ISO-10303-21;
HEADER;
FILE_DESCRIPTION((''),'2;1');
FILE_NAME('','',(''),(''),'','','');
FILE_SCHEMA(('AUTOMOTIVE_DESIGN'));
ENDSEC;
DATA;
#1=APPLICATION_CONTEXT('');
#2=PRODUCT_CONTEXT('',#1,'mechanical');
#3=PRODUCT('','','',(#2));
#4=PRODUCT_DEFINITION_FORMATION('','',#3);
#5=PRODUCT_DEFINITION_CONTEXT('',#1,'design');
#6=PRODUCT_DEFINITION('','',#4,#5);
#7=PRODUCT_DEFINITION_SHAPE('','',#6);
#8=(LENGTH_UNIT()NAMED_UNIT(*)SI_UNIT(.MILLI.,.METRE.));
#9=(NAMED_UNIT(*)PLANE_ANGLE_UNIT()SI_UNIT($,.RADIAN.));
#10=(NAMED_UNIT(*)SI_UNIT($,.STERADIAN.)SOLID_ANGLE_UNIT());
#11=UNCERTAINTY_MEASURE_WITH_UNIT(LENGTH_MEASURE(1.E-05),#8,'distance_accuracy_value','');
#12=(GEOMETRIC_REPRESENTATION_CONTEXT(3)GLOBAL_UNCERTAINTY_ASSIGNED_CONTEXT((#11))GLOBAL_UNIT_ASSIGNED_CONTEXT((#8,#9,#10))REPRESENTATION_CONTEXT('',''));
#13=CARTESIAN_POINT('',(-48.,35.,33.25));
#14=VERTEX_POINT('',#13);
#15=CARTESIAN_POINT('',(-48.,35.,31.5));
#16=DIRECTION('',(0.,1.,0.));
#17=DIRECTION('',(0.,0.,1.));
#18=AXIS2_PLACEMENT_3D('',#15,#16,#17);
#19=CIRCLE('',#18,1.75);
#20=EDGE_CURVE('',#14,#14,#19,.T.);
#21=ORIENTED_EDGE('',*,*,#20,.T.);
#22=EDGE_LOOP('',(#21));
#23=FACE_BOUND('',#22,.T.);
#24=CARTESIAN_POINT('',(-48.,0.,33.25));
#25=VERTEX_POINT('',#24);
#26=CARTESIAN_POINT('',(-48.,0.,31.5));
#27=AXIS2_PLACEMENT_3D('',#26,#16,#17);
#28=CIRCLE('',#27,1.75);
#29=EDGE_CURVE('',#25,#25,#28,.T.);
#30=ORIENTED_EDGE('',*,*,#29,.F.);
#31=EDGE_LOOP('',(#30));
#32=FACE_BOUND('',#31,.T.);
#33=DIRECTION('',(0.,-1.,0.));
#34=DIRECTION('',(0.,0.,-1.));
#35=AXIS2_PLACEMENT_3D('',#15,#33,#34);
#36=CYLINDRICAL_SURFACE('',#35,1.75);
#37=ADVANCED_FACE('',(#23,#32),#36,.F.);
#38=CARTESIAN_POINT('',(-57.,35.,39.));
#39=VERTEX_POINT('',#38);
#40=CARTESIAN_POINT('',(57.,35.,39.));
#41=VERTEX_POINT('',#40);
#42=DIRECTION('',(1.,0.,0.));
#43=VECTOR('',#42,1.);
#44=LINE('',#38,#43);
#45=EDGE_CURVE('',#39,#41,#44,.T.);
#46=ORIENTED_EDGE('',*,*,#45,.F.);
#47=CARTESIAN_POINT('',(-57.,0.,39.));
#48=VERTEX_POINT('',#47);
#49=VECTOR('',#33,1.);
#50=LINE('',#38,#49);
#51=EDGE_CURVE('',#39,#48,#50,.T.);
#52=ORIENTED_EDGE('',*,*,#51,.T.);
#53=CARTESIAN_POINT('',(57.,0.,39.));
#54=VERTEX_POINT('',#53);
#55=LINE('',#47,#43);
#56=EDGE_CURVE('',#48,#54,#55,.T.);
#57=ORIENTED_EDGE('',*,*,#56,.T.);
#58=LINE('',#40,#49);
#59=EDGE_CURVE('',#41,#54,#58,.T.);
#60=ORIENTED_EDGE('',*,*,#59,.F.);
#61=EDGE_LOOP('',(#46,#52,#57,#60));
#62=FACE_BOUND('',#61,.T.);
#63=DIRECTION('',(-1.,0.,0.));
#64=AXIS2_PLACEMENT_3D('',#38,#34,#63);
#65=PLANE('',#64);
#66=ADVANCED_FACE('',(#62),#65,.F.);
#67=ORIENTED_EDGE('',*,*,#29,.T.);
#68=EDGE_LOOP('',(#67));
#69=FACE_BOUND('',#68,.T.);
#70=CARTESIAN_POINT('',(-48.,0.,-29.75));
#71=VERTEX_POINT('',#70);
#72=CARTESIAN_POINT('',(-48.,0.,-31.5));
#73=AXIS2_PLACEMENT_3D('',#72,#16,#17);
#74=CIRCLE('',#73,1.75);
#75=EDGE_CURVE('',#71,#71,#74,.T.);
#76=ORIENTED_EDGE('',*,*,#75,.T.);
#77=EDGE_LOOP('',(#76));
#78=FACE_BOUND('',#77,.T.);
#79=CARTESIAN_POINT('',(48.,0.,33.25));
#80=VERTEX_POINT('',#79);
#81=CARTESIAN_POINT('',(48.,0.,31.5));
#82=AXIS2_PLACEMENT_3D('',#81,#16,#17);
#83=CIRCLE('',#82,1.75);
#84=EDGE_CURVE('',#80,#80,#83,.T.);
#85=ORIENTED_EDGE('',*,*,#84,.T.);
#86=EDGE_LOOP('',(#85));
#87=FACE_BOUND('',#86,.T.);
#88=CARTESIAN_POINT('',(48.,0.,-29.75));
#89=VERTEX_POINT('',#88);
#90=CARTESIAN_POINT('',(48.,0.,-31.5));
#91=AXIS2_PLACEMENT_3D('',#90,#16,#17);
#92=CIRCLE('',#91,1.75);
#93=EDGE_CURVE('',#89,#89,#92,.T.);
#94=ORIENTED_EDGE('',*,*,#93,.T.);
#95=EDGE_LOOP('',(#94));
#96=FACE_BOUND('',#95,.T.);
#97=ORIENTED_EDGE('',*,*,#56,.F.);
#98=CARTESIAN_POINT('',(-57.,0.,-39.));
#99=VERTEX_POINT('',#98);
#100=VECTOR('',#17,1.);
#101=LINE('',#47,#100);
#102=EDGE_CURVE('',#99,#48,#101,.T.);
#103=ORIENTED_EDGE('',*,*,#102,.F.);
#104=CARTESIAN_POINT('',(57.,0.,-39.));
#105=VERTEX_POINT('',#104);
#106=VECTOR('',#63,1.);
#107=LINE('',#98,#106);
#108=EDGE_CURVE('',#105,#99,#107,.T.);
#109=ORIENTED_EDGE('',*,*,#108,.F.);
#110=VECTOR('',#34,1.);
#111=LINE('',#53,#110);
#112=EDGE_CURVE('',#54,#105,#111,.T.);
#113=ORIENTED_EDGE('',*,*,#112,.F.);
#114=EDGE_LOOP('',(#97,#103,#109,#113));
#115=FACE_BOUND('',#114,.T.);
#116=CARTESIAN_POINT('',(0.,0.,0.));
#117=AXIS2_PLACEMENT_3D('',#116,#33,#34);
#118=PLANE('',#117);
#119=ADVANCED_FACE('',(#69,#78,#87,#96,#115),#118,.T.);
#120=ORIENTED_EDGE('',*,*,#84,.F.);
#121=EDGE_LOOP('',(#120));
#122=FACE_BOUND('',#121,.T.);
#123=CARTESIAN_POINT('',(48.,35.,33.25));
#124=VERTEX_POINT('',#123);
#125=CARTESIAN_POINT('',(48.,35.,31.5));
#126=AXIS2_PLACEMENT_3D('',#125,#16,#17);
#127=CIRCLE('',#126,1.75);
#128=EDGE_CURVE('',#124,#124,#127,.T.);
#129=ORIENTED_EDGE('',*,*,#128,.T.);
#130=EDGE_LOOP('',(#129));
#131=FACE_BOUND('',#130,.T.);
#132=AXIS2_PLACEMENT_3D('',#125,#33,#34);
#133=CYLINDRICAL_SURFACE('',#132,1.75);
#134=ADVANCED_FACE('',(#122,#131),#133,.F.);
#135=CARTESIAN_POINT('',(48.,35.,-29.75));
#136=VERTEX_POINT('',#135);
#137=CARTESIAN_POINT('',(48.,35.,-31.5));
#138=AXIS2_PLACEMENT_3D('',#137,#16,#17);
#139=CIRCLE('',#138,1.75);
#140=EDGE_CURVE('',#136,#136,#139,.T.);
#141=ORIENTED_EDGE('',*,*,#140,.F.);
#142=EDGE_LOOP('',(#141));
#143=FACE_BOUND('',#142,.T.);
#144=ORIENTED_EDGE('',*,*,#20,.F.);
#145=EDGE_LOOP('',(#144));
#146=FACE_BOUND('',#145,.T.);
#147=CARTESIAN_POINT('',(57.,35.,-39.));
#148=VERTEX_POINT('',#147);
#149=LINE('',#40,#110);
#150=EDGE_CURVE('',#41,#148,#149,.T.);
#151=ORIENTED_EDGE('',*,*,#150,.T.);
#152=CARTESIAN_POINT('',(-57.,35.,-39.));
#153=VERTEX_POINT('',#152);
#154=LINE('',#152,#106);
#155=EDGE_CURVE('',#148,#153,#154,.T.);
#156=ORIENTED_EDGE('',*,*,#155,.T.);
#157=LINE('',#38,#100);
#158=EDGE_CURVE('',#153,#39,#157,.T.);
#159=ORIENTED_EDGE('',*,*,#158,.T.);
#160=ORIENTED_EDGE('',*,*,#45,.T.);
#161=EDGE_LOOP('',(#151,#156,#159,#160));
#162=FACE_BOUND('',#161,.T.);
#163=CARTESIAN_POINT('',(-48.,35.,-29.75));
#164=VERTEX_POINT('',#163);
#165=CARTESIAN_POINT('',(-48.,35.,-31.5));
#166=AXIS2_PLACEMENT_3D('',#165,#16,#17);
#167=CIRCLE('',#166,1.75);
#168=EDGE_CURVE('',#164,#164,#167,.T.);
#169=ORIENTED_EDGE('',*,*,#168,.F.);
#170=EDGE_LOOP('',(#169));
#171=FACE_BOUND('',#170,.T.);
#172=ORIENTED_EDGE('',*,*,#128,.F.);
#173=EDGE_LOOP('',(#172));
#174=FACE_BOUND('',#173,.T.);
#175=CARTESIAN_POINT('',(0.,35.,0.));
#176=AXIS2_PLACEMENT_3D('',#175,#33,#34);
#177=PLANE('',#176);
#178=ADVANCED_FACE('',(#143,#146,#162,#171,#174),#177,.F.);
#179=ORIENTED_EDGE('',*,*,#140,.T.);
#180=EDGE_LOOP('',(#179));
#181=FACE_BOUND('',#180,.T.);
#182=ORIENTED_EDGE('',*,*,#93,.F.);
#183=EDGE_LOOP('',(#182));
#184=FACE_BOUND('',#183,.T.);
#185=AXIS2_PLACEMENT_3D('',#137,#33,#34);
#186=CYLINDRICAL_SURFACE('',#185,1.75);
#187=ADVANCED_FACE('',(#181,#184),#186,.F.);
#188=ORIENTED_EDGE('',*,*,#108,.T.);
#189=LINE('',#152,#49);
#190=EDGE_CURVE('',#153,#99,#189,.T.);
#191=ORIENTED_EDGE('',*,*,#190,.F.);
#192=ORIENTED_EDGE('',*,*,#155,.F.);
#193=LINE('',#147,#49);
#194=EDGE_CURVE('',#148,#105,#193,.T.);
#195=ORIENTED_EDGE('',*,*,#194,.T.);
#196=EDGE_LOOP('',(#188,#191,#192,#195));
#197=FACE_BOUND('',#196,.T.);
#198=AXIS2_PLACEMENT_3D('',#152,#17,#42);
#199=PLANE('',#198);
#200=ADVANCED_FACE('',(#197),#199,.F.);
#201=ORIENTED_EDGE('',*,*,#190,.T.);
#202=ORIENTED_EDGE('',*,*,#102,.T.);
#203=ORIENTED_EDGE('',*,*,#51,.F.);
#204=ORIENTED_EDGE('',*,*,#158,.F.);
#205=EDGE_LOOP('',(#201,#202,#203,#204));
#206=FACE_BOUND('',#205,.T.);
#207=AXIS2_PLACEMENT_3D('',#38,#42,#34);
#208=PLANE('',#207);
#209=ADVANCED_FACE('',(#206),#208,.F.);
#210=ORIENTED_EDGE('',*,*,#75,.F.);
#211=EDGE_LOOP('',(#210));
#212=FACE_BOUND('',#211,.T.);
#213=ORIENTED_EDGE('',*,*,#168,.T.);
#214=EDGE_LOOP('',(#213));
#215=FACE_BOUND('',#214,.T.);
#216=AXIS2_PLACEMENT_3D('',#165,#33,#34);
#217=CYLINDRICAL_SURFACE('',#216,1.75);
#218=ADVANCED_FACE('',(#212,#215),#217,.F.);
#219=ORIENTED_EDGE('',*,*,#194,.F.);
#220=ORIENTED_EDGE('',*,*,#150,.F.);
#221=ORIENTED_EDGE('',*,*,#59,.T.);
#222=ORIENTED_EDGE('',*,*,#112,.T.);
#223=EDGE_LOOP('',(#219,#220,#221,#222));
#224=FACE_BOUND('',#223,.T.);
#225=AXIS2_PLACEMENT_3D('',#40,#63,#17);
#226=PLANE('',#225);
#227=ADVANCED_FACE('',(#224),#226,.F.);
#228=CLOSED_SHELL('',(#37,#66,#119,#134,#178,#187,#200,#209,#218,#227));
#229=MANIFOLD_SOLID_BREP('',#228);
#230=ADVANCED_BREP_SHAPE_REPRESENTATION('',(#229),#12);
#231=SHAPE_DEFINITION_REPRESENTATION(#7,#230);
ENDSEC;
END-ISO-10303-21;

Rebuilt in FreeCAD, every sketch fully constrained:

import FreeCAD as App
import Part
import Sketcher

V = App.Vector
Q = App.Units.Quantity


def add_polygon(sketch, points):
    """Adds a closed chain of lines whose ends are joined by coincident constraints."""
    first, n = sketch.GeometryCount, len(points)
    for a, b in zip(points, points[1:] + points[:1]):
        sketch.addGeometry(Part.LineSegment(App.Vector(*a, 0), App.Vector(*b, 0)), False)
    for i in range(n):
        sketch.addConstraint(Sketcher.Constraint("Coincident", first + i, 2, first + (i + 1) % n, 1))

doc = App.newDocument("Part")
params = doc.addObject("Spreadsheet::Sheet", "Params")
for row, (alias, value) in enumerate([
    ("sketch1_diameter", "3.5 mm"),
    ("sketch1_width", "114 mm"),
    ("sketch1_height", "78 mm"),
    ("pad1_length", "35 mm"),
], start=1):
    params.set(f"A{row}", alias)
    params.set(f"B{row}", "=" + value)
    params.setAlias(f"B{row}", alias)

body = doc.addObject("PartDesign::Body", "Body")

# Sketch on XZ plane
sketch1 = body.newObject("Sketcher::SketchObject", "Sketch")
sketch1.AttachmentSupport = (doc.getObject("XZ_Plane"), [""])
sketch1.MapMode = "FlatFace"
add_polygon(sketch1, [(-57, -39), (-57, 39), (57, 39), (57, -39)])  # lines 0-3
sketch1.addGeometry(Part.Circle(V(-48, 31.5, 0), V(0, 0, 1), 1.8), False)  # 4
sketch1.addGeometry(Part.Circle(V(48, 31.5, 0), V(0, 0, 1), 1.8), False)  # 5
sketch1.addGeometry(Part.Circle(V(-48, -31.5, 0), V(0, 0, 1), 1.8), False)  # 6
sketch1.addGeometry(Part.Circle(V(48, -31.5, 0), V(0, 0, 1), 1.8), False)  # 7
sketch1.addConstraint(Sketcher.Constraint("Vertical", 0))
sketch1.addConstraint(Sketcher.Constraint("Horizontal", 1))
sketch1.addConstraint(Sketcher.Constraint("Vertical", 2))
sketch1.addConstraint(Sketcher.Constraint("Horizontal", 3))
sketch1.addConstraint(Sketcher.Constraint("Equal", 4, 5))
sketch1.addConstraint(Sketcher.Constraint("Equal", 5, 6))
sketch1.addConstraint(Sketcher.Constraint("Equal", 6, 7))
sketch1.addConstraint(Sketcher.Constraint("Symmetric", 5, 3, 6, 3, -1, 1))
sketch1.addConstraint(Sketcher.Constraint("Symmetric", 4, 3, 7, 3, -1, 1))
sketch1.addConstraint(Sketcher.Constraint("Symmetric", 0, 2, 2, 2, -1, 1))
sketch1.addConstraint(Sketcher.Constraint("Symmetric", 4, 3, 5, 3, -2))
sketch1.addConstraint(Sketcher.Constraint("Diameter", 4, Q("3.5 mm")))
sketch1.addConstraint(Sketcher.Constraint("DistanceX", 1, 1, 1, 2, Q("114 mm")))
sketch1.addConstraint(Sketcher.Constraint("DistanceY", 0, 1, 0, 2, Q("78 mm")))
sketch1.addConstraint(Sketcher.Constraint("DistanceX", 4, 3, -1, 1, Q("48 mm")))
sketch1.addConstraint(Sketcher.Constraint("DistanceY", 6, 3, 4, 3, Q("63 mm")))
sketch1.setExpression("Constraints[15]", "Params.sketch1_diameter")
sketch1.setExpression("Constraints[16]", "Params.sketch1_width")
sketch1.setExpression("Constraints[17]", "Params.sketch1_height")
pad1 = body.newObject("PartDesign::Pad", "Pad")
pad1.Profile = sketch1
pad1.setExpression("Length", "Params.pad1_length")
pad1.Reversed = True

doc.recompute()
